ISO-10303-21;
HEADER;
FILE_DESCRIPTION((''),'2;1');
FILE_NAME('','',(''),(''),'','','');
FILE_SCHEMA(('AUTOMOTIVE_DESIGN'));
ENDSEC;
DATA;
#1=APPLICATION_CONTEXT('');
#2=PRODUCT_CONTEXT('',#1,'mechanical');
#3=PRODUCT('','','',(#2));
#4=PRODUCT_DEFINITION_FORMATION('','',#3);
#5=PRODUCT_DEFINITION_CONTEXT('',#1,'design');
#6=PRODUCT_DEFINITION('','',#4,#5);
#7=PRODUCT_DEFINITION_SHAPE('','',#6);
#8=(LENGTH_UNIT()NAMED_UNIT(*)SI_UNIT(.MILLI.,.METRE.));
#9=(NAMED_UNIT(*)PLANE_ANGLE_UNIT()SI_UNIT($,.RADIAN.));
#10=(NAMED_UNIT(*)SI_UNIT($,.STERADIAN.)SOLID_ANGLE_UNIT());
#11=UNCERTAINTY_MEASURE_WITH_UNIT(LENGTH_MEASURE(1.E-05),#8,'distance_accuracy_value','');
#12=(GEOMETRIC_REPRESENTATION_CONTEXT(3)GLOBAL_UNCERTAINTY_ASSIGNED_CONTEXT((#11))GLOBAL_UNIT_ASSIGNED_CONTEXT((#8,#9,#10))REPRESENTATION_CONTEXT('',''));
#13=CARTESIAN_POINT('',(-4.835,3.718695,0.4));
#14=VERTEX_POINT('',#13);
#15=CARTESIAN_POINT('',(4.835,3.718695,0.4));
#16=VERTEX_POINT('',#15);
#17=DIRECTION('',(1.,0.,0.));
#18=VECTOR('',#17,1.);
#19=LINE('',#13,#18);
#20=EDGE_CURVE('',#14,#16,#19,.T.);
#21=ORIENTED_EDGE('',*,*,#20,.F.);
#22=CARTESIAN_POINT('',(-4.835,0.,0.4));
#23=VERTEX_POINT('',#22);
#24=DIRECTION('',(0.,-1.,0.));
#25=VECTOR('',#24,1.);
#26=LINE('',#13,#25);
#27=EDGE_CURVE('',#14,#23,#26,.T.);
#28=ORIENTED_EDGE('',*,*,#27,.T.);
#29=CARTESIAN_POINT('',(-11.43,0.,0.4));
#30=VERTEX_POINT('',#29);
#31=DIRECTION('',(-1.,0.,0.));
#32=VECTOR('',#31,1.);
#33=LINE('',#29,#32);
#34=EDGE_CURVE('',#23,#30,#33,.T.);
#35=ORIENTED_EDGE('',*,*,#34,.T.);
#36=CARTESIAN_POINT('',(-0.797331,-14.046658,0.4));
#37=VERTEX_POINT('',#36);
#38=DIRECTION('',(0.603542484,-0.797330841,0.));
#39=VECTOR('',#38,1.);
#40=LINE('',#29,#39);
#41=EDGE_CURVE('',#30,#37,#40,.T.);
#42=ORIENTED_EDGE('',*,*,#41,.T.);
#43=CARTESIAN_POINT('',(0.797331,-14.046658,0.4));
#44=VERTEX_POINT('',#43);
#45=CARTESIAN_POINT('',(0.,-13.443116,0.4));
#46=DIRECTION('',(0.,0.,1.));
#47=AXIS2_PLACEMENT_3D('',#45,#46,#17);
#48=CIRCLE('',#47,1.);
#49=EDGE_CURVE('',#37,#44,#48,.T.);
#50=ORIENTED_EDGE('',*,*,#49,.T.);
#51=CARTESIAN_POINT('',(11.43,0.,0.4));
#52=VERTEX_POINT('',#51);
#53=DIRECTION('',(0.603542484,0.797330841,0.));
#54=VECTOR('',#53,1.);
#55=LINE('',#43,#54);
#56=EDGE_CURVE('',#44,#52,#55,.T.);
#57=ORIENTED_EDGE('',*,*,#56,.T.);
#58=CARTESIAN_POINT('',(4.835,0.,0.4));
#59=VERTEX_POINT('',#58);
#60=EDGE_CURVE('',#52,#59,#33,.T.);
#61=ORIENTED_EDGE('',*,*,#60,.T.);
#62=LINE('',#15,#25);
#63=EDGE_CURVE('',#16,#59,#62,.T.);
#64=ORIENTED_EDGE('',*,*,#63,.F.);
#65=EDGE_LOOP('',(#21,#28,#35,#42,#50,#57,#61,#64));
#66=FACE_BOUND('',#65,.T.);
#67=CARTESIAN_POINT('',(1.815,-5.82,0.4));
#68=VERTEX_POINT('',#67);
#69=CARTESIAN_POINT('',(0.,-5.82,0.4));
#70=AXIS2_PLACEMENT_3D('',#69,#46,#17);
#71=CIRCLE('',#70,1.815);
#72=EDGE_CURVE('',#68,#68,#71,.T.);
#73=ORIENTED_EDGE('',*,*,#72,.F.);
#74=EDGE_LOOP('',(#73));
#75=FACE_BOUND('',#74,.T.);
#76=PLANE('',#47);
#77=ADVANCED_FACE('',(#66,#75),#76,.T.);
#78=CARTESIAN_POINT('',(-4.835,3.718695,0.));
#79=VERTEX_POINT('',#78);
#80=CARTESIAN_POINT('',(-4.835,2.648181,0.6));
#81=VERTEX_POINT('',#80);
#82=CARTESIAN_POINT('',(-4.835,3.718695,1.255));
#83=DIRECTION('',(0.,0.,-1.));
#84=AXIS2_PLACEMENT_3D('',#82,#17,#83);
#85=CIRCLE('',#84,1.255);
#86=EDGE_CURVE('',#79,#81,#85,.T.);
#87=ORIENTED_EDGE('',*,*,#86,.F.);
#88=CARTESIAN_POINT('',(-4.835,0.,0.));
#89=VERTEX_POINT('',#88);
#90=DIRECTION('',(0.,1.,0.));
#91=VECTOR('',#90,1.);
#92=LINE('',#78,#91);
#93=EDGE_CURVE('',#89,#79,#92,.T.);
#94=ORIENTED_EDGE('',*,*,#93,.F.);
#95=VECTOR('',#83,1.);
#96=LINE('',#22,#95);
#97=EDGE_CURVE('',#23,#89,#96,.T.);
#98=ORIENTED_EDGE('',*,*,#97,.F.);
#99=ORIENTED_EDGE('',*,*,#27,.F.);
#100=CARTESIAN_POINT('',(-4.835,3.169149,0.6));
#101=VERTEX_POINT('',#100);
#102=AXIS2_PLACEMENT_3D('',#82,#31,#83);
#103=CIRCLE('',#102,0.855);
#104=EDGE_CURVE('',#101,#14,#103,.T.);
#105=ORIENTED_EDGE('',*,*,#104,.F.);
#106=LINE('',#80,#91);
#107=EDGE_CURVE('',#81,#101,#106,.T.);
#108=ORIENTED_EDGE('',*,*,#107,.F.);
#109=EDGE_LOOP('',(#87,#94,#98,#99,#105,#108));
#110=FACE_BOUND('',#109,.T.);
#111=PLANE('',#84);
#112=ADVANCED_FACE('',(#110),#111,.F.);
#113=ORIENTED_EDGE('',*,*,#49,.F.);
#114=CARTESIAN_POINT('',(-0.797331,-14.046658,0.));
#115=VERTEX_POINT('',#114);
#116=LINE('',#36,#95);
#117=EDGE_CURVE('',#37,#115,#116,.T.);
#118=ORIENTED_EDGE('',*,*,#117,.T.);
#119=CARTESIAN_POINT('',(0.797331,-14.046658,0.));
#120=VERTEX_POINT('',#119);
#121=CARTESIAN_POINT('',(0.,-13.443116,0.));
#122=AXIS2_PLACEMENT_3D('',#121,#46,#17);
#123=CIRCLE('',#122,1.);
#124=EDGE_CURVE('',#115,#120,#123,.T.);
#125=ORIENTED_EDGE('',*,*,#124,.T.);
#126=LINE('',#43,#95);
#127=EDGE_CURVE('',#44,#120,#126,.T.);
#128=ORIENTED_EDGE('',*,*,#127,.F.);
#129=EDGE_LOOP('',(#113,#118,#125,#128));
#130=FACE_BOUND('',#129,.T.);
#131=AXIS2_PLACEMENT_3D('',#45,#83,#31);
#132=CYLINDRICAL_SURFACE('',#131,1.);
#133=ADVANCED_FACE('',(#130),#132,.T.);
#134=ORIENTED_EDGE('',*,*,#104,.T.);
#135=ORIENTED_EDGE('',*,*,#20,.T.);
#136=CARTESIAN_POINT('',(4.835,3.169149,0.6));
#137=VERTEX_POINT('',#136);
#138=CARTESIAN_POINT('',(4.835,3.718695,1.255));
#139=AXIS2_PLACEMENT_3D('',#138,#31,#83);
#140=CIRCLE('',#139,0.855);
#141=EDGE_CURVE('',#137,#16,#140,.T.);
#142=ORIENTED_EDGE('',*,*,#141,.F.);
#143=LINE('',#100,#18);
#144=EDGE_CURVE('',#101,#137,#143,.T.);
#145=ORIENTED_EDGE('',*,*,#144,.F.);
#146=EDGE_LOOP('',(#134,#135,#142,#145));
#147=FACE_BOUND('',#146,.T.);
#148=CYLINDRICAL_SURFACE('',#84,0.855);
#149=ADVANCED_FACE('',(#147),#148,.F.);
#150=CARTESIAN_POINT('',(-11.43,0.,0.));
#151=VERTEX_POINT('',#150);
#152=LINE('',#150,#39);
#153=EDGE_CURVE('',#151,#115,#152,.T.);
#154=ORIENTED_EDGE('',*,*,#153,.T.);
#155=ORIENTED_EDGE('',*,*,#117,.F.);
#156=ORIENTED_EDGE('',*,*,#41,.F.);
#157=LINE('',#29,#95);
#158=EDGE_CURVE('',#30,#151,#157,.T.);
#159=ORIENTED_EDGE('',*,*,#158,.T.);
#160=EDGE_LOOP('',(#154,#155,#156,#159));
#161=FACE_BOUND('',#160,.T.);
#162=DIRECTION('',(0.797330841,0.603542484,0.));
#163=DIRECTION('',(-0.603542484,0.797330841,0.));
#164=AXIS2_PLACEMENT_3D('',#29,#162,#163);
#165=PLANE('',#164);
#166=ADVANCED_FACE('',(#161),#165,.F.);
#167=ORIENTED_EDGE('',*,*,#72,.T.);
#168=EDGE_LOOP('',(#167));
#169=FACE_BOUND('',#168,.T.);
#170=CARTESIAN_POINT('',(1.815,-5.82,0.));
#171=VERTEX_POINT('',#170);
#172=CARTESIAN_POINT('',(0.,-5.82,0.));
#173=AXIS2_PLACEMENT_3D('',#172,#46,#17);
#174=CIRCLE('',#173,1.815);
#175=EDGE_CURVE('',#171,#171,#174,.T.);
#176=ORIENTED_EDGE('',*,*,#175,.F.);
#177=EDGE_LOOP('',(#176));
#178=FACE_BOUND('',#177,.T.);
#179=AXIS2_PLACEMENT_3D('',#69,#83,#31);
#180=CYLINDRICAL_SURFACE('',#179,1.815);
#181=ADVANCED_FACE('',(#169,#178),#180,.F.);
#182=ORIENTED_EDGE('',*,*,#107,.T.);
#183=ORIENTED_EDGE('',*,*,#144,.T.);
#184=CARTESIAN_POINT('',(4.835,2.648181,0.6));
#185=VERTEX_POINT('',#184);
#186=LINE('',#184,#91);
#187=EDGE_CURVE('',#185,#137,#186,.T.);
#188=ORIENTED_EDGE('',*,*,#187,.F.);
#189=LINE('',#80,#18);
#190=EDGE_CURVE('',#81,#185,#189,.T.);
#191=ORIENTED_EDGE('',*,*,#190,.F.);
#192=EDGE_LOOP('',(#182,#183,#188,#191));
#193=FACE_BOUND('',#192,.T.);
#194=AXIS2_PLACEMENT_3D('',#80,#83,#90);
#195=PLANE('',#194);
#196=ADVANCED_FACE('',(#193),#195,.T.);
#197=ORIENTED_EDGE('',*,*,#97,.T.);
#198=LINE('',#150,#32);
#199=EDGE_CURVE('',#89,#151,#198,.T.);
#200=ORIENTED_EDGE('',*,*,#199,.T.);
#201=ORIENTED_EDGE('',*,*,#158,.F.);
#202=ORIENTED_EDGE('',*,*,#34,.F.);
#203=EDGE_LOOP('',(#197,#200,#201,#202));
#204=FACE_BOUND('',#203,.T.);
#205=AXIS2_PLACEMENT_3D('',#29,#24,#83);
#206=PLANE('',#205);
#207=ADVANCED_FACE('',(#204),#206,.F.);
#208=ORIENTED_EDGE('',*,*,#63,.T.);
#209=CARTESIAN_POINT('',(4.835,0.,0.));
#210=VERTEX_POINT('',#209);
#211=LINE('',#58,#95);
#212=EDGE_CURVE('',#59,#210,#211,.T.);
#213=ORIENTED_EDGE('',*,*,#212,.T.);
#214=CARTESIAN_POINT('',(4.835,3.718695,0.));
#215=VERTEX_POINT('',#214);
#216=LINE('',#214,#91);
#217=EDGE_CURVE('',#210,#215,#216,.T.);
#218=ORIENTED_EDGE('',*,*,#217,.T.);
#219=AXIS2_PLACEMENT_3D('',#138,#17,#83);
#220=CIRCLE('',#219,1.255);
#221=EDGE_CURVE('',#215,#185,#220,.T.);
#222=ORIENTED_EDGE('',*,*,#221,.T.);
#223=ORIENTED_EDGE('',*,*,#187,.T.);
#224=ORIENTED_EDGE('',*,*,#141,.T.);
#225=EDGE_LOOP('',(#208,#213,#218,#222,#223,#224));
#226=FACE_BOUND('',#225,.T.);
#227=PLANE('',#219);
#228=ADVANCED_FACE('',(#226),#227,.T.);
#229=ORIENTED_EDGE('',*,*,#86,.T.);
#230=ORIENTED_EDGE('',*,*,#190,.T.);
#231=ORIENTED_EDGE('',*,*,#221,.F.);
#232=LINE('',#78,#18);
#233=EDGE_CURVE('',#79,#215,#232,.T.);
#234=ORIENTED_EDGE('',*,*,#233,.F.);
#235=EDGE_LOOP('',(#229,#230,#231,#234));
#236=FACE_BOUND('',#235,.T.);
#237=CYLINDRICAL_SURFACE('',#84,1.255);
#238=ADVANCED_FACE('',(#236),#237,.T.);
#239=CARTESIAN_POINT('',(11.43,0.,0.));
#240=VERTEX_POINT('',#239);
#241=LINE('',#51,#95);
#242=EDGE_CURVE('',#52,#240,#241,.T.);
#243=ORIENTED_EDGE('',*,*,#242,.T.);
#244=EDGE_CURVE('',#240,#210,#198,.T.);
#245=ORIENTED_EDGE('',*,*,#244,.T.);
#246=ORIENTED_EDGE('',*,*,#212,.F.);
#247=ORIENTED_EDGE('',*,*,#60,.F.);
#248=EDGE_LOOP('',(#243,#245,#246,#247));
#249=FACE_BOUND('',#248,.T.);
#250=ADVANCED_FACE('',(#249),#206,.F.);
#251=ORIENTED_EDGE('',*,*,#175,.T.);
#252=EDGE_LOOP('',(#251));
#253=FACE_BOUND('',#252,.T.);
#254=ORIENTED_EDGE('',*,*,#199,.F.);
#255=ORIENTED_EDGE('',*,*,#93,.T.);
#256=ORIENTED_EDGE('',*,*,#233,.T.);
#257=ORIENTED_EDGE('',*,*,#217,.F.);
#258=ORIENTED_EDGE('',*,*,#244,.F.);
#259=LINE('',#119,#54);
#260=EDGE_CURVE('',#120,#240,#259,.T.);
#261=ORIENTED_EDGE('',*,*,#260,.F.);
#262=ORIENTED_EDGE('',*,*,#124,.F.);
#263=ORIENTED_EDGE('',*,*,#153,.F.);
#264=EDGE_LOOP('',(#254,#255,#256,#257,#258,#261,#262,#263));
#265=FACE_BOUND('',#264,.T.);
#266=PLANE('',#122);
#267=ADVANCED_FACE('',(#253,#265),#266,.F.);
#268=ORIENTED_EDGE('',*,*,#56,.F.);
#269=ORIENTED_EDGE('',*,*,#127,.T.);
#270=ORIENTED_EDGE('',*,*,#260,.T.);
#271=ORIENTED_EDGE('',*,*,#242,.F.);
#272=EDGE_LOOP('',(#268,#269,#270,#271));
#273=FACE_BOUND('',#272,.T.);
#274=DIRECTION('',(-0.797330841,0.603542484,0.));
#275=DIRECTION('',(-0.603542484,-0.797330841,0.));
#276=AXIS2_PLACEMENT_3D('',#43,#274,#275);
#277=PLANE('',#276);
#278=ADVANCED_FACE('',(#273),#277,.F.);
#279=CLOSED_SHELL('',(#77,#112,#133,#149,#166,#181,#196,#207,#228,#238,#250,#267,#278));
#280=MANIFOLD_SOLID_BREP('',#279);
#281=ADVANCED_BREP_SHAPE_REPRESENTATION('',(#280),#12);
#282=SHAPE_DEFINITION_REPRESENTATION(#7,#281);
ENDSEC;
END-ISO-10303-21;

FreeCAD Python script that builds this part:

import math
import FreeCAD as App
import Part
import Sketcher

V = App.Vector

doc = App.newDocument("Part")
body = doc.addObject("PartDesign::Body", "Body")

sketch1 = body.newObject("Sketcher::SketchObject", "Sketch")
sketch1.AttachmentSupport = (doc.getObject("XY_Plane"), [""])
sketch1.MapMode = "FlatFace"
sketch1.addGeometry(Part.LineSegment(V(11.4, 0, 0), V(-11.4, 0, 0)), False)
sketch1.addGeometry(Part.LineSegment(V(-11.4, 0, 0), V(-0.8, -14, 0)), False)
sketch1.addGeometry(Part.ArcOfCircle(Part.Circle(V(0, -13.4, 0), V(0, 0, 1), 1), math.radians(-143), math.radians(-37)), False)
sketch1.addGeometry(Part.LineSegment(V(0.8, -14, 0), V(11.4, 0, 0)), False)
sketch1.addGeometry(Part.Circle(V(0, -5.8, 0), V(0, 0, 1), 1.8), False)
sketch1.addConstraint(Sketcher.Constraint("Coincident", 0, 2, 1, 1))
sketch1.addConstraint(Sketcher.Constraint("Tangent", 1, 2, 2, 1))
sketch1.addConstraint(Sketcher.Constraint("Tangent", 2, 2, 3, 1))
sketch1.addConstraint(Sketcher.Constraint("Coincident", 3, 2, 0, 1))
sketch1.addConstraint(Sketcher.Constraint("Horizontal", 0))
sketch1.addConstraint(Sketcher.Constraint("Symmetric", 0, 2, 3, 2, -1, 1))
sketch1.addConstraint(Sketcher.Constraint("PointOnObject", 2, 3, -2))
sketch1.addConstraint(Sketcher.Constraint("PointOnObject", 4, 3, -2))
sketch1.addConstraint(Sketcher.Constraint("Radius", 2, 1.0))
sketch1.addConstraint(Sketcher.Constraint("Diameter", 4, 3.63))
sketch1.addConstraint(Sketcher.Constraint("DistanceX", 0, 2, 0, 1, 22.86))
sketch1.addConstraint(Sketcher.Constraint("DistanceY", 4, 3, -1, 1, 5.82))
sketch1.addConstraint(Sketcher.Constraint("Distance", 1, 17.617101))
pad1 = body.newObject("PartDesign::Pad", "Pad")
pad1.Profile = sketch1
pad1.Length = 0.4

sketch2 = body.newObject("Sketcher::SketchObject", "Sketch001")
sketch2.AttachmentSupport = (doc.getObject("YZ_Plane"), [""])
sketch2.MapMode = "FlatFace"
sketch2.addGeometry(Part.LineSegment(V(0, 0.4, 0), V(0, 0, 0)), False)
sketch2.addGeometry(Part.LineSegment(V(0, 0, 0), V(3.72, 0, 0)), False)
sketch2.addGeometry(Part.ArcOfCircle(Part.Circle(V(3.72, 1.25, 0), V(0, 0, 1), 1.25), math.radians(-90), math.radians(211)), False)
sketch2.addGeometry(Part.LineSegment(V(2.65, 0.6, 0), V(3.17, 0.6, 0)), False)
sketch2.addGeometry(Part.ArcOfCircle(Part.Circle(V(3.72, 1.25, 0), V(0, 0, 1), 0.85), math.radians(-90), math.radians(230)), False)
sketch2.addGeometry(Part.LineSegment(V(3.72, 0.4, 0), V(0, 0.4, 0)), False)
sketch2.addConstraint(Sketcher.Constraint("Coincident", 0, 2, 1, 1))
sketch2.addConstraint(Sketcher.Constraint("Tangent", 1, 2, 2, 1))
sketch2.addConstraint(Sketcher.Constraint("Coincident", 2, 2, 3, 1))
sketch2.addConstraint(Sketcher.Constraint("Coincident", 3, 2, 4, 2))
sketch2.addConstraint(Sketcher.Constraint("Tangent", 4, 1, 5, 1))
sketch2.addConstraint(Sketcher.Constraint("Coincident", 5, 2, 0, 1))
sketch2.addConstraint(Sketcher.Constraint("Vertical", 0))
sketch2.addConstraint(Sketcher.Constraint("Horizontal", 1))
sketch2.addConstraint(Sketcher.Constraint("Horizontal", 3))
sketch2.addConstraint(Sketcher.Constraint("Horizontal", 5))
sketch2.addConstraint(Sketcher.Constraint("Coincident", 0, 2, -1, 1))
sketch2.addConstraint(Sketcher.Constraint("Coincident", 4, 3, 2, 3))
sketch2.addConstraint(Sketcher.Constraint("DistanceY", 0, 2, 0, 1, 0.4))
sketch2.addConstraint(Sketcher.Constraint("Radius", 2, 1.255))
sketch2.addConstraint(Sketcher.Constraint("DistanceY", -1, 1, 2, 2, 0.6))
sketch2.addConstraint(Sketcher.Constraint("DistanceX", 1, 1, 1, 2, 3.718695))
pad2 = body.newObject("PartDesign::Pad", "Pad001")
pad2.Profile = sketch2
pad2.Type = "TwoLengths"
pad2.Length = 4.835
pad2.Length2 = 4.835

doc.recompute()
